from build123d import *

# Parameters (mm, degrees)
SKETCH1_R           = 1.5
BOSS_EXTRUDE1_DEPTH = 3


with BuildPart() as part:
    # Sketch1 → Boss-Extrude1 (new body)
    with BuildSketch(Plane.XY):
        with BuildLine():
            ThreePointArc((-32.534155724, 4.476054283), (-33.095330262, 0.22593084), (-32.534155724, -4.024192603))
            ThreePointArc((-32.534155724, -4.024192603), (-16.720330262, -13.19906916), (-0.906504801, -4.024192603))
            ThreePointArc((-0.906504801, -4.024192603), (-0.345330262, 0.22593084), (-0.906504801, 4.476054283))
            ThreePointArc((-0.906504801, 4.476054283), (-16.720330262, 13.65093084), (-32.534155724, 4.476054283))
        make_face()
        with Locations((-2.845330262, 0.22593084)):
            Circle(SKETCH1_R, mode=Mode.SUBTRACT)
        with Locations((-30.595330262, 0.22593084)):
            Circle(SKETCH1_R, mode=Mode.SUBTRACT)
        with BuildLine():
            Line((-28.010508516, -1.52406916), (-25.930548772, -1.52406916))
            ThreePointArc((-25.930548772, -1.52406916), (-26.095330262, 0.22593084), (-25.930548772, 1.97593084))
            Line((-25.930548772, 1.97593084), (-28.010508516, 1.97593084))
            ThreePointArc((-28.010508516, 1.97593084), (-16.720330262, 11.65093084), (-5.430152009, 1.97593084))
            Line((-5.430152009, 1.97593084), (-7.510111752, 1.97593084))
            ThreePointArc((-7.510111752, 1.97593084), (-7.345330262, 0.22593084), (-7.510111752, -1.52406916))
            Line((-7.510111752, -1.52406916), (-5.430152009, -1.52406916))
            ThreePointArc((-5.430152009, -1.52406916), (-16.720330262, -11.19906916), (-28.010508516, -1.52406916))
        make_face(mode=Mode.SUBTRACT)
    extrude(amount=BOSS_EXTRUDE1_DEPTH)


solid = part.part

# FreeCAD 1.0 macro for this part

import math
import FreeCAD as App
import Part
import Sketcher
from FreeCAD import Vector
Q = App.Units.Quantity

doc = App.newDocument("Part")
body = doc.addObject("PartDesign::Body", "Body")

# Sketch on XY plane
sketch1 = body.newObject("Sketcher::SketchObject", "Sketch")
sketch1.AttachmentSupport = (doc.getObject("XY_Plane"), [""])
sketch1.MapMode = "FlatFace"
sketch1.addGeometry([
    Part.ArcOfCircle(Part.Circle(Vector(-16.7, 0.2, 0), Vector(0, 0, 1), 16.4), math.radians(165), math.radians(195)),  # 0
    Part.ArcOfCircle(Part.Circle(Vector(-16.7, 5, 0), Vector(0, 0, 1), 18.2), math.radians(-150), math.radians(-30)),  # 1
    Part.ArcOfCircle(Part.Circle(Vector(-16.7, 0.2, 0), Vector(0, 0, 1), 16.4), math.radians(-15), math.radians(15)),  # 2
    Part.ArcOfCircle(Part.Circle(Vector(-16.7, -4.6, 0), Vector(0, 0, 1), 18.2), math.radians(30), math.radians(150)),  # 3
    Part.Circle(Vector(-30.6, 0.2, 0), Vector(0, 0, 1), 1.5),  # 4
    Part.Circle(Vector(-2.8, 0.2, 0), Vector(0, 0, 1), 1.5),  # 5
    Part.ArcOfCircle(Part.Circle(Vector(-16.7, 0.2, 0), Vector(0, 0, 1), 11.4), math.radians(-171), math.radians(-9)),  # 6
    Part.LineSegment(Vector(-28, -1.5, 0), Vector(-25.9, -1.5, 0)),  # 7
    Part.ArcOfCircle(Part.Circle(Vector(-16.7, 0.2, 0), Vector(0, 0, 1), 9.4), math.radians(169), math.radians(191)),  # 8
    Part.LineSegment(Vector(-25.9, 2, 0), Vector(-28, 2, 0)),  # 9
    Part.ArcOfCircle(Part.Circle(Vector(-16.7, 0.2, 0), Vector(0, 0, 1), 11.4), math.radians(9), math.radians(171)),  # 10
    Part.LineSegment(Vector(-5.4, 2, 0), Vector(-7.5, 2, 0)),  # 11
    Part.ArcOfCircle(Part.Circle(Vector(-16.7, 0.2, 0), Vector(0, 0, 1), 9.4), math.radians(-11), math.radians(11)),  # 12
    Part.LineSegment(Vector(-7.5, -1.5, 0), Vector(-5.4, -1.5, 0)),  # 13
], False)
sketch1.addConstraint([
    Sketcher.Constraint("Coincident", 0, 2, 1, 1),
    Sketcher.Constraint("Coincident", 1, 2, 2, 1),
    Sketcher.Constraint("Coincident", 2, 2, 3, 1),
    Sketcher.Constraint("Coincident", 3, 2, 0, 1),
    Sketcher.Constraint("Coincident", 6, 1, 7, 1),
    Sketcher.Constraint("Coincident", 7, 2, 8, 2),
    Sketcher.Constraint("Coincident", 8, 1, 9, 1),
    Sketcher.Constraint("Coincident", 9, 2, 10, 2),
    Sketcher.Constraint("Coincident", 10, 1, 11, 1),
    Sketcher.Constraint("Coincident", 11, 2, 12, 2),
    Sketcher.Constraint("Coincident", 12, 1, 13, 1),
    Sketcher.Constraint("Coincident", 13, 2, 6, 2),
    Sketcher.Constraint("Horizontal", 7),
    Sketcher.Constraint("Horizontal", 9),
    Sketcher.Constraint("Horizontal", 11),
    Sketcher.Constraint("Horizontal", 13),
    Sketcher.Constraint("Coincident", 2, 3, 0, 3),
    Sketcher.Constraint("Coincident", 6, 3, 0, 3),
    Sketcher.Constraint("Coincident", 8, 3, 0, 3),
    Sketcher.Constraint("Coincident", 10, 3, 0, 3),
    Sketcher.Constraint("Coincident", 12, 3, 0, 3),
    Sketcher.Constraint("Equal", 0, 2),
    Sketcher.Constraint("Equal", 1, 3),
    Sketcher.Constraint("Equal", 4, 5),
    Sketcher.Constraint("Equal", 6, 10),
    Sketcher.Constraint("Equal", 8, 12),
    Sketcher.Constraint("Horizontal", 2, 3, 4, 3),
    Sketcher.Constraint("Horizontal", 4, 3, 5, 3),
    Sketcher.Constraint("Horizontal", 0, 2, 1, 2),
    Sketcher.Constraint("Horizontal", 2, 2, 3, 2),
    Sketcher.Constraint("Horizontal", 9, 2, 10, 1),
    Sketcher.Constraint("Horizontal", 7, 2, 12, 1),
    Sketcher.Constraint("Vertical", 1, 2, 2, 2),
    Sketcher.Constraint("Vertical", 7, 2, 8, 1),
    Sketcher.Constraint("Diameter", 4, Q("3 mm")),
    Sketcher.Constraint("Radius", 0, Q("16.375 mm")),
    Sketcher.Constraint("Radius", 6, Q("11.425 mm")),
    Sketcher.Constraint("Radius", 8, Q("9.375 mm")),
    Sketcher.Constraint("Radius", 1, Q("18.2158 mm")),
    Sketcher.Constraint("DistanceY", 7, 2, 8, 1, Q("3.5 mm")),
    Sketcher.Constraint("DistanceX", 4, 3, 5, 3, Q("27.75 mm")),
    Sketcher.Constraint("DistanceX", 4, 3, 2, 3, Q("13.875 mm")),
    Sketcher.Constraint("DistanceY", 0, 3, 1, 3, Q("4.7908 mm")),
    Sketcher.Constraint("DistanceX", 0, 3, -1, 1, Q("16.72033 mm")),
    Sketcher.Constraint("DistanceY", -1, 1, 0, 3, Q("0.225931 mm")),
])
pad1 = body.newObject("PartDesign::Pad", "Pad")
pad1.Profile = sketch1
pad1.Length = 3

doc.recompute()
